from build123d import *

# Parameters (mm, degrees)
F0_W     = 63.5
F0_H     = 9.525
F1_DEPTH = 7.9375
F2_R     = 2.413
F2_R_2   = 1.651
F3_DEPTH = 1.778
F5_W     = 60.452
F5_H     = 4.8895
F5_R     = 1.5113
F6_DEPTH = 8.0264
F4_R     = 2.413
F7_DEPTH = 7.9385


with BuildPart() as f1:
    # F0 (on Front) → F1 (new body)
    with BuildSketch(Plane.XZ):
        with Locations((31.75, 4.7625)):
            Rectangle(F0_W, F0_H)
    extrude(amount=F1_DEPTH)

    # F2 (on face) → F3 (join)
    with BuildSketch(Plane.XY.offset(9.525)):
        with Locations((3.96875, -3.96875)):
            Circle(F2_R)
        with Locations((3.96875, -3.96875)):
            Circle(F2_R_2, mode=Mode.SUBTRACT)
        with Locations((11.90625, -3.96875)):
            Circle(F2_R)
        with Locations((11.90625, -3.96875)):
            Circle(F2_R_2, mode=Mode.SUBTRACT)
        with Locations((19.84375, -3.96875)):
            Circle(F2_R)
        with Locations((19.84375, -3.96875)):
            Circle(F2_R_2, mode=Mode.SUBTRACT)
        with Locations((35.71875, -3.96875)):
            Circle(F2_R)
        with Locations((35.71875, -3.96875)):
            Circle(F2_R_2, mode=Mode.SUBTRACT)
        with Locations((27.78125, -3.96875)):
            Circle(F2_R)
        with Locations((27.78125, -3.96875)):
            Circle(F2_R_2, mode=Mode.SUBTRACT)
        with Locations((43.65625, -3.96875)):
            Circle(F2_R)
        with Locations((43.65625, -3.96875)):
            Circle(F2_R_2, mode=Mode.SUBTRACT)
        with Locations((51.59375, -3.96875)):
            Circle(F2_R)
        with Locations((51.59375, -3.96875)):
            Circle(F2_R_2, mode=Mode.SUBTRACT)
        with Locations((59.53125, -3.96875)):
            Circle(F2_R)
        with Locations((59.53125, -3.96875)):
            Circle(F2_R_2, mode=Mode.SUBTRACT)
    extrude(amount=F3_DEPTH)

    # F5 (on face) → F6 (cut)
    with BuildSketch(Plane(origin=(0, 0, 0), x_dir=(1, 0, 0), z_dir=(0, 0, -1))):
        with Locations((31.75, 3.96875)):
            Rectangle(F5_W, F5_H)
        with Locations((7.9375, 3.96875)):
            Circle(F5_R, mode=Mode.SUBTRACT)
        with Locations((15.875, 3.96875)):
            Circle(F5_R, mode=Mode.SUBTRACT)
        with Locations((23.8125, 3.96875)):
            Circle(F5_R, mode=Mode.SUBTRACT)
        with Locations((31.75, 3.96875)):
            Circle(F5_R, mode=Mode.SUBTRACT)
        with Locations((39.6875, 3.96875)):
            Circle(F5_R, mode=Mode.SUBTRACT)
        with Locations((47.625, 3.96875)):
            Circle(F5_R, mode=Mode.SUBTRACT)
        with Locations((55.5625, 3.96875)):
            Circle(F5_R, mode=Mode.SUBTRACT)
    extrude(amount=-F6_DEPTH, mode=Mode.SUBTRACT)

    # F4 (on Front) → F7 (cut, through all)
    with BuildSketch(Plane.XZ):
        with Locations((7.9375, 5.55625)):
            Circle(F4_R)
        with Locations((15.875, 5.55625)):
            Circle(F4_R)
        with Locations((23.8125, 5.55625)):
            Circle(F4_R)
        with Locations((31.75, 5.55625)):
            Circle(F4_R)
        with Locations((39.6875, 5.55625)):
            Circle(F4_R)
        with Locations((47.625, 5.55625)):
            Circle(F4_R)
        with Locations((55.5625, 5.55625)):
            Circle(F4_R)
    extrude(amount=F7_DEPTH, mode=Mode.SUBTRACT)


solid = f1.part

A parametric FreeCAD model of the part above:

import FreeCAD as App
import Part
import Sketcher

V = App.Vector
Q = App.Units.Quantity

doc = App.newDocument("Part")
body = doc.addObject("PartDesign::Body", "Body")
body.AllowCompound = True

sketch1 = body.newObject("Sketcher::SketchObject", "Sketch")
sketch1.AttachmentSupport = (doc.getObject("XZ_Plane"), [""])
sketch1.MapMode = "FlatFace"
sketch1.addGeometry(Part.LineSegment(V(0, 10, 0), V(0, 0, 0)), False)
sketch1.addGeometry(Part.LineSegment(V(0, 0, 0), V(64, 0, 0)), False)
sketch1.addGeometry(Part.LineSegment(V(64, 0, 0), V(64, 10, 0)), False)
sketch1.addGeometry(Part.LineSegment(V(64, 10, 0), V(0, 10, 0)), False)
sketch1.addConstraint(Sketcher.Constraint("Coincident", 0, 2, 1, 1))
sketch1.addConstraint(Sketcher.Constraint("Coincident", 1, 2, 2, 1))
sketch1.addConstraint(Sketcher.Constraint("Coincident", 2, 2, 3, 1))
sketch1.addConstraint(Sketcher.Constraint("Coincident", 3, 2, 0, 1))
sketch1.addConstraint(Sketcher.Constraint("Vertical", 0))
sketch1.addConstraint(Sketcher.Constraint("Horizontal", 1))
sketch1.addConstraint(Sketcher.Constraint("Vertical", 2))
sketch1.addConstraint(Sketcher.Constraint("Horizontal", 3))
sketch1.addConstraint(Sketcher.Constraint("Coincident", 0, 2, -1, 1))
sketch1.addConstraint(Sketcher.Constraint("DistanceX", 1, 1, 1, 2, Q("2.5 in")))
sketch1.addConstraint(Sketcher.Constraint("DistanceY", 0, 2, 0, 1, Q("0.375 in")))
pad1 = body.newObject("PartDesign::Pad", "Pad")
pad1.Profile = sketch1
pad1.Length = Q("0.3125 in")

sketch2 = body.newObject("Sketcher::SketchObject", "Sketch001")
sketch2.AttachmentSupport = (doc.getObject("XY_Plane"), [""])
sketch2.MapMode = "FlatFace"
sketch2.AttachmentOffset = App.Placement(V(0, 0, 0.375 * 25.4), App.Rotation())
sketch2.addGeometry(Part.Circle(V(4, -4, 0), V(0, 0, 1), 2.4), False)
sketch2.addGeometry(Part.Circle(V(4, -4, 0), V(0, 0, 1), 1.7), False)
sketch2.addGeometry(Part.Circle(V(11.9, -4, 0), V(0, 0, 1), 2.4), False)
sketch2.addGeometry(Part.Circle(V(11.9, -4, 0), V(0, 0, 1), 1.7), False)
sketch2.addGeometry(Part.Circle(V(19.8, -4, 0), V(0, 0, 1), 2.4), False)
sketch2.addGeometry(Part.Circle(V(19.8, -4, 0), V(0, 0, 1), 1.7), False)
sketch2.addGeometry(Part.Circle(V(35.7, -4, 0), V(0, 0, 1), 2.4), False)
sketch2.addGeometry(Part.Circle(V(35.7, -4, 0), V(0, 0, 1), 1.7), False)
sketch2.addGeometry(Part.Circle(V(27.8, -4, 0), V(0, 0, 1), 2.4), False)
sketch2.addGeometry(Part.Circle(V(27.8, -4, 0), V(0, 0, 1), 1.7), False)
sketch2.addGeometry(Part.Circle(V(43.7, -4, 0), V(0, 0, 1), 2.4), False)
sketch2.addGeometry(Part.Circle(V(43.7, -4, 0), V(0, 0, 1), 1.7), False)
sketch2.addGeometry(Part.Circle(V(51.6, -4, 0), V(0, 0, 1), 2.4), False)
sketch2.addGeometry(Part.Circle(V(51.6, -4, 0), V(0, 0, 1), 1.7), False)
sketch2.addGeometry(Part.Circle(V(59.5, -4, 0), V(0, 0, 1), 2.4), False)
sketch2.addGeometry(Part.Circle(V(59.5, -4, 0), V(0, 0, 1), 1.7), False)
sketch2.addConstraint(Sketcher.Constraint("Coincident", 1, 3, 0, 3))
sketch2.addConstraint(Sketcher.Constraint("Coincident", 3, 3, 2, 3))
sketch2.addConstraint(Sketcher.Constraint("Coincident", 5, 3, 4, 3))
sketch2.addConstraint(Sketcher.Constraint("Coincident", 7, 3, 6, 3))
sketch2.addConstraint(Sketcher.Constraint("Coincident", 9, 3, 8, 3))
sketch2.addConstraint(Sketcher.Constraint("Coincident", 11, 3, 10, 3))
sketch2.addConstraint(Sketcher.Constraint("Coincident", 13, 3, 12, 3))
sketch2.addConstraint(Sketcher.Constraint("Coincident", 15, 3, 14, 3))
sketch2.addConstraint(Sketcher.Constraint("Equal", 0, 2))
sketch2.addConstraint(Sketcher.Constraint("Equal", 1, 3))
sketch2.addConstraint(Sketcher.Constraint("Equal", 2, 4))
sketch2.addConstraint(Sketcher.Constraint("Equal", 3, 5))
sketch2.addConstraint(Sketcher.Constraint("Equal", 4, 6))
sketch2.addConstraint(Sketcher.Constraint("Equal", 5, 7))
sketch2.addConstraint(Sketcher.Constraint("Equal", 6, 8))
sketch2.addConstraint(Sketcher.Constraint("Equal", 7, 9))
sketch2.addConstraint(Sketcher.Constraint("Equal", 8, 10))
sketch2.addConstraint(Sketcher.Constraint("Equal", 9, 11))
sketch2.addConstraint(Sketcher.Constraint("Equal", 10, 12))
sketch2.addConstraint(Sketcher.Constraint("Equal", 11, 13))
sketch2.addConstraint(Sketcher.Constraint("Equal", 12, 14))
sketch2.addConstraint(Sketcher.Constraint("Equal", 13, 15))
sketch2.addConstraint(Sketcher.Constraint("Horizontal", 1, 3, 2, 3))
sketch2.addConstraint(Sketcher.Constraint("Horizontal", 3, 3, 4, 3))
sketch2.addConstraint(Sketcher.Constraint("Horizontal", 5, 3, 6, 3))
sketch2.addConstraint(Sketcher.Constraint("Horizontal", 7, 3, 8, 3))
sketch2.addConstraint(Sketcher.Constraint("Horizontal", 9, 3, 10, 3))
sketch2.addConstraint(Sketcher.Constraint("Horizontal", 11, 3, 12, 3))
sketch2.addConstraint(Sketcher.Constraint("Horizontal", 13, 3, 14, 3))
sketch2.addConstraint(Sketcher.Constraint("Diameter", 0, Q("0.19 in")))
sketch2.addConstraint(Sketcher.Constraint("Diameter", 1, Q("0.13 in")))
sketch2.addConstraint(Sketcher.Constraint("DistanceX", 0, 3, 6, 3, Q("1.25 in")))
sketch2.addConstraint(Sketcher.Constraint("DistanceX", -1, 1, 0, 3, Q("0.15625 in")))
sketch2.addConstraint(Sketcher.Constraint("DistanceY", 0, 3, -1, 1, Q("0.15625 in")))
sketch2.addConstraint(Sketcher.Constraint("DistanceX", -1, 1, 2, 3, Q("0.46875 in")))
sketch2.addConstraint(Sketcher.Constraint("DistanceX", -1, 1, 4, 3, Q("0.78125 in")))
sketch2.addConstraint(Sketcher.Constraint("DistanceX", -1, 1, 8, 3, Q("1.09375 in")))
sketch2.addConstraint(Sketcher.Constraint("DistanceX", -1, 1, 10, 3, Q("1.71875 in")))
sketch2.addConstraint(Sketcher.Constraint("DistanceX", -1, 1, 12, 3, Q("2.03125 in")))
sketch2.addConstraint(Sketcher.Constraint("DistanceX", -1, 1, 14, 3, Q("2.34375 in")))
pad2 = body.newObject("PartDesign::Pad", "Pad001")
pad2.Profile = sketch2
pad2.Length = Q("0.07 in")

sketch3 = body.newObject("Sketcher::SketchObject", "Sketch002")
sketch3.AttachmentSupport = (doc.getObject("XY_Plane"), [""])
sketch3.MapMode = "FlatFace"
sketch3.addGeometry(Part.LineSegment(V(1.5, -6.4, 0), V(1.5, -1.5, 0)), False)
sketch3.addGeometry(Part.LineSegment(V(1.5, -1.5, 0), V(62, -1.5, 0)), False)
sketch3.addGeometry(Part.LineSegment(V(62, -1.5, 0), V(62, -6.4, 0)), False)
sketch3.addGeometry(Part.LineSegment(V(62, -6.4, 0), V(1.5, -6.4, 0)), False)
sketch3.addGeometry(Part.Circle(V(7.9, -4, 0), V(0, 0, 1), 1.5), False)
sketch3.addGeometry(Part.Circle(V(15.9, -4, 0), V(0, 0, 1), 1.5), False)
sketch3.addGeometry(Part.Circle(V(23.8, -4, 0), V(0, 0, 1), 1.5), False)
sketch3.addGeometry(Part.Circle(V(31.8, -4, 0), V(0, 0, 1), 1.5), False)
sketch3.addGeometry(Part.Circle(V(39.7, -4, 0), V(0, 0, 1), 1.5), False)
sketch3.addGeometry(Part.Circle(V(47.6, -4, 0), V(0, 0, 1), 1.5), False)
sketch3.addGeometry(Part.Circle(V(55.6, -4, 0), V(0, 0, 1), 1.5), False)
sketch3.addConstraint(Sketcher.Constraint("Coincident", 0, 2, 1, 1))
sketch3.addConstraint(Sketcher.Constraint("Coincident", 1, 2, 2, 1))
sketch3.addConstraint(Sketcher.Constraint("Coincident", 2, 2, 3, 1))
sketch3.addConstraint(Sketcher.Constraint("Coincident", 3, 2, 0, 1))
sketch3.addConstraint(Sketcher.Constraint("Vertical", 0))
sketch3.addConstraint(Sketcher.Constraint("Horizontal", 1))
sketch3.addConstraint(Sketcher.Constraint("Vertical", 2))
sketch3.addConstraint(Sketcher.Constraint("Horizontal", 3))
sketch3.addConstraint(Sketcher.Constraint("Equal", 4, 5))
sketch3.addConstraint(Sketcher.Constraint("Equal", 5, 6))
sketch3.addConstraint(Sketcher.Constraint("Equal", 6, 7))
sketch3.addConstraint(Sketcher.Constraint("Equal", 7, 8))
sketch3.addConstraint(Sketcher.Constraint("Equal", 8, 9))
sketch3.addConstraint(Sketcher.Constraint("Equal", 9, 10))
sketch3.addConstraint(Sketcher.Constraint("Horizontal", 4, 3, 5, 3))
sketch3.addConstraint(Sketcher.Constraint("Horizontal", 5, 3, 6, 3))
sketch3.addConstraint(Sketcher.Constraint("Horizontal", 6, 3, 7, 3))
sketch3.addConstraint(Sketcher.Constraint("Horizontal", 7, 3, 8, 3))
sketch3.addConstraint(Sketcher.Constraint("Horizontal", 8, 3, 9, 3))
sketch3.addConstraint(Sketcher.Constraint("Horizontal", 9, 3, 10, 3))
sketch3.addConstraint(Sketcher.Constraint("Diameter", 4, Q("0.119 in")))
sketch3.addConstraint(Sketcher.Constraint("DistanceX", 1, 1, 1, 2, Q("2.38 in")))
sketch3.addConstraint(Sketcher.Constraint("DistanceX", -1, 1, 7, 3, Q("1.25 in")))
sketch3.addConstraint(Sketcher.Constraint("DistanceX", -1, 1, 0, 2, Q("0.06 in")))
sketch3.addConstraint(Sketcher.Constraint("DistanceY", 0, 2, -1, 1, Q("0.06 in")))
sketch3.addConstraint(Sketcher.Constraint("DistanceX", 4, 3, 8, 3, Q("1.25 in")))
sketch3.addConstraint(Sketcher.Constraint("DistanceX", 5, 3, 9, 3, Q("1.25 in")))
sketch3.addConstraint(Sketcher.Constraint("DistanceX", 6, 3, 10, 3, Q("1.25 in")))
sketch3.addConstraint(Sketcher.Constraint("DistanceY", 0, 1, 0, 2, Q("0.1925 in")))
sketch3.addConstraint(Sketcher.Constraint("DistanceX", -1, 1, 4, 3, Q("0.3125 in")))
sketch3.addConstraint(Sketcher.Constraint("DistanceY", 4, 3, -1, 1, Q("0.15625 in")))
sketch3.addConstraint(Sketcher.Constraint("DistanceX", -1, 1, 5, 3, Q("0.625 in")))
sketch3.addConstraint(Sketcher.Constraint("DistanceX", -1, 1, 6, 3, Q("0.9375 in")))
pocket1 = body.newObject("PartDesign::Pocket", "Pocket")
pocket1.Profile = sketch3
pocket1.Length = Q("0.316 in")
pocket1.Reversed = True

sketch4 = body.newObject("Sketcher::SketchObject", "Sketch003")
sketch4.AttachmentSupport = (doc.getObject("XZ_Plane"), [""])
sketch4.MapMode = "FlatFace"
sketch4.addGeometry(Part.Circle(V(7.9, 5.6, 0), V(0, 0, 1), 2.4), False)
sketch4.addGeometry(Part.Circle(V(15.9, 5.6, 0), V(0, 0, 1), 2.4), False)
sketch4.addGeometry(Part.Circle(V(23.8, 5.6, 0), V(0, 0, 1), 2.4), False)
sketch4.addGeometry(Part.Circle(V(31.8, 5.6, 0), V(0, 0, 1), 2.4), False)
sketch4.addGeometry(Part.Circle(V(39.7, 5.6, 0), V(0, 0, 1), 2.4), False)
sketch4.addGeometry(Part.Circle(V(47.6, 5.6, 0), V(0, 0, 1), 2.4), False)
sketch4.addGeometry(Part.Circle(V(55.6, 5.6, 0), V(0, 0, 1), 2.4), False)
sketch4.addConstraint(Sketcher.Constraint("Equal", 0, 1))
sketch4.addConstraint(Sketcher.Constraint("Equal", 1, 2))
sketch4.addConstraint(Sketcher.Constraint("Equal", 2, 3))
sketch4.addConstraint(Sketcher.Constraint("Equal", 3, 4))
sketch4.addConstraint(Sketcher.Constraint("Equal", 4, 5))
sketch4.addConstraint(Sketcher.Constraint("Equal", 5, 6))
sketch4.addConstraint(Sketcher.Constraint("Horizontal", 0, 3, 1, 3))
sketch4.addConstraint(Sketcher.Constraint("Horizontal", 1, 3, 2, 3))
sketch4.addConstraint(Sketcher.Constraint("Horizontal", 2, 3, 3, 3))
sketch4.addConstraint(Sketcher.Constraint("Horizontal", 3, 3, 4, 3))
sketch4.addConstraint(Sketcher.Constraint("Horizontal", 4, 3, 5, 3))
sketch4.addConstraint(Sketcher.Constraint("Horizontal", 5, 3, 6, 3))
sketch4.addConstraint(Sketcher.Constraint("Diameter", 0, Q("0.19 in")))
sketch4.addConstraint(Sketcher.Constraint("DistanceX", -1, 1, 3, 3, Q("1.25 in")))
sketch4.addConstraint(Sketcher.Constraint("DistanceX", 0, 3, 4, 3, Q("1.25 in")))
sketch4.addConstraint(Sketcher.Constraint("DistanceX", 1, 3, 5, 3, Q("1.25 in")))
sketch4.addConstraint(Sketcher.Constraint("DistanceX", 2, 3, 6, 3, Q("1.25 in")))
sketch4.addConstraint(Sketcher.Constraint("DistanceX", -1, 1, 0, 3, Q("0.3125 in")))
sketch4.addConstraint(Sketcher.Constraint("DistanceY", -1, 1, 0, 3, Q("0.21875 in")))
sketch4.addConstraint(Sketcher.Constraint("DistanceX", -1, 1, 1, 3, Q("0.625 in")))
sketch4.addConstraint(Sketcher.Constraint("DistanceX", -1, 1, 2, 3, Q("0.9375 in")))
pocket2 = body.newObject("PartDesign::Pocket", "Pocket001")
pocket2.Profile = sketch4
pocket2.Type = "ThroughAll"
pocket2.Reversed = True

doc.recompute()
